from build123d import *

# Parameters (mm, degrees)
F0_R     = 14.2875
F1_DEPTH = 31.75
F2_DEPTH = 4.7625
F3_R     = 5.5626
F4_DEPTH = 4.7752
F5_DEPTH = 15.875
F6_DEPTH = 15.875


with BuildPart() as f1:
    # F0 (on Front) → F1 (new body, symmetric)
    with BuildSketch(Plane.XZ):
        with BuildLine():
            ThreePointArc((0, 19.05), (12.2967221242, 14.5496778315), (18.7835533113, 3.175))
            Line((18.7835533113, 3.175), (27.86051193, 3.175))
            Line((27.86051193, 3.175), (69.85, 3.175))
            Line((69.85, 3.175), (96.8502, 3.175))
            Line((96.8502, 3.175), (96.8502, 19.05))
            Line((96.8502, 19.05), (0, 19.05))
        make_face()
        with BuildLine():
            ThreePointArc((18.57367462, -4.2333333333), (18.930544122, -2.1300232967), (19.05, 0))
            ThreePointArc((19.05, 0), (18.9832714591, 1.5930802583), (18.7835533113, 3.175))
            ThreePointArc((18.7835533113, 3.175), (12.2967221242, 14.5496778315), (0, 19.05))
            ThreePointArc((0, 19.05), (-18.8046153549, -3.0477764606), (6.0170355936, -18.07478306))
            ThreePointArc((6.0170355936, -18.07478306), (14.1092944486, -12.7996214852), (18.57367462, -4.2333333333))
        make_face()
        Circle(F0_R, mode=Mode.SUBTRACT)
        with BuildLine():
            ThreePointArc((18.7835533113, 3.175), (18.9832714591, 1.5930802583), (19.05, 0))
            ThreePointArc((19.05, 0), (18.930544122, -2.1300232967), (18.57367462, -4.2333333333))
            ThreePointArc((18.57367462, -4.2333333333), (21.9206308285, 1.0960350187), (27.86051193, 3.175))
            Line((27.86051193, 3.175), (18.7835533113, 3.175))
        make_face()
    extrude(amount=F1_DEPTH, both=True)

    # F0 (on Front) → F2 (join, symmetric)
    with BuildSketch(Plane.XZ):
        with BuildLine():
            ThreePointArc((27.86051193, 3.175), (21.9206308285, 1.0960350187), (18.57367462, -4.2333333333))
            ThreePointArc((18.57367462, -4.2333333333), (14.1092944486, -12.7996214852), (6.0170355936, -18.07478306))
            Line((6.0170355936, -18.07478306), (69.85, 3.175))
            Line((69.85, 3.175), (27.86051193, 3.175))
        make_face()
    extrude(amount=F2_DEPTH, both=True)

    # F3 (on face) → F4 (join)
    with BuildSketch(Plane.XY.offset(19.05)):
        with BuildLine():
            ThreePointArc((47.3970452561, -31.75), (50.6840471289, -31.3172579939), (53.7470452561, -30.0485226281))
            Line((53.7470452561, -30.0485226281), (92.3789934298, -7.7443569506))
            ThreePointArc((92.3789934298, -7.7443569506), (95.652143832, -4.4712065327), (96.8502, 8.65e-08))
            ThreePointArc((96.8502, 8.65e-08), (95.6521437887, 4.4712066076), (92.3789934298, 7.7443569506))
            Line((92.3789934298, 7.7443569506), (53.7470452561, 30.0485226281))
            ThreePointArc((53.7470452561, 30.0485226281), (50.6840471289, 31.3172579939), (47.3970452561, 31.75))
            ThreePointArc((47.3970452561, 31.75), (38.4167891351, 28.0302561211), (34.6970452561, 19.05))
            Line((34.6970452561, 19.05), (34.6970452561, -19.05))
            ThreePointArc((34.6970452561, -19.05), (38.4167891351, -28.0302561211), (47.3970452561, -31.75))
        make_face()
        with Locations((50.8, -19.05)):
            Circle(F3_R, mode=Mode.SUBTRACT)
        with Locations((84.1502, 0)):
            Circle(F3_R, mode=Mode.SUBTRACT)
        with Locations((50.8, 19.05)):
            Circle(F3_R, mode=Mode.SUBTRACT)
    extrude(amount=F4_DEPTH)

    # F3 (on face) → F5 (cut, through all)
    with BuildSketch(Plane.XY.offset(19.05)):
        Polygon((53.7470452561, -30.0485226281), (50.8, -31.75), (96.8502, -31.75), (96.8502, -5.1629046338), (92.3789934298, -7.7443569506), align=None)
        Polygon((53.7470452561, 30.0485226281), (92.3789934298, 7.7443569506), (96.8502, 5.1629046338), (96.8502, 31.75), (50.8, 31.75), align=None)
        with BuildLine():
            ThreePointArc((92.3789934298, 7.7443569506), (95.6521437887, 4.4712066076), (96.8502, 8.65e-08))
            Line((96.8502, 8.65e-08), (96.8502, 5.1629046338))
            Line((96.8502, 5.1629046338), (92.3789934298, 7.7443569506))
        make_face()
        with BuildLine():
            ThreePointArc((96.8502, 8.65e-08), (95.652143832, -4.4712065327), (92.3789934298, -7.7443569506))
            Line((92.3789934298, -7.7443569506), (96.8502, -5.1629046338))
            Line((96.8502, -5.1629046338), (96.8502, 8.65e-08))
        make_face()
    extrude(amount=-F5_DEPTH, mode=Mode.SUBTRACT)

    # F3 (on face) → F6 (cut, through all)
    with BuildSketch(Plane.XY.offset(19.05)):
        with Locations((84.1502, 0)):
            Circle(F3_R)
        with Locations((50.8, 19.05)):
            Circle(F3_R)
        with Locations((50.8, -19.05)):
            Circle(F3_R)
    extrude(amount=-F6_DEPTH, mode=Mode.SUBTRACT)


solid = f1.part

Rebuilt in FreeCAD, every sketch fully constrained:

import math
import FreeCAD as App
import Part
import Sketcher

V = App.Vector
Q = App.Units.Quantity

doc = App.newDocument("Part")
body = doc.addObject("PartDesign::Body", "Body")

# Sketch on XZ plane
sketch1 = body.newObject("Sketcher::SketchObject", "Sketch")
sketch1.AttachmentSupport = (doc.getObject("XZ_Plane"), [""])
sketch1.MapMode = "FlatFace"
sketch1.addGeometry([
    Part.LineSegment(V(28, 3, 0), V(97, 3, 0)),  # 0
    Part.LineSegment(V(97, 3, 0), V(97, 19, 0)),  # 1
    Part.LineSegment(V(97, 19, 0), V(0, 19, 0)),  # 2
    Part.ArcOfCircle(Part.Circle(V(0, 0, 0), V(0, 0, 1), 19), math.radians(90), math.radians(288)),  # 3
    Part.ArcOfCircle(Part.Circle(V(0, 0, 0), V(0, 0, 1), 19), math.radians(-72), math.radians(-13)),  # 4
    Part.ArcOfCircle(Part.Circle(V(28, -6, 0), V(0, 0, 1), 10), math.radians(90), math.radians(167)),  # 5
    Part.Circle(V(0, 0, 0), V(0, 0, 1), 14),  # 6
], False)
sketch1.addConstraint([
    Sketcher.Constraint("Coincident", 0, 2, 1, 1),
    Sketcher.Constraint("Coincident", 1, 2, 2, 1),
    Sketcher.Constraint("Tangent", 2, 2, 3, 1),
    Sketcher.Constraint("Tangent", 3, 2, 4, 1),
    Sketcher.Constraint("Tangent", 4, 2, 5, 2),
    Sketcher.Constraint("Tangent", 5, 1, 0, 1),
    Sketcher.Constraint("Horizontal", 0),
    Sketcher.Constraint("Vertical", 1),
    Sketcher.Constraint("Horizontal", 2),
    Sketcher.Constraint("Coincident", 3, 3, -1, 1),
    Sketcher.Constraint("Coincident", 6, 3, -1, 1),
    Sketcher.Constraint("Equal", 3, 4),
    Sketcher.Constraint("Radius", 3, Q("0.75 in")),
    Sketcher.Constraint("Diameter", 6, Q("1.125 in")),
    Sketcher.Constraint("Radius", 5, Q("0.375 in")),
    Sketcher.Constraint("DistanceY", 5, 3, 1, 2, Q("1 in")),
    Sketcher.Constraint("DistanceX", 2, 2, 2, 1, Q("3.813 in")),
    Sketcher.Constraint("DistanceX", 3, 2, 4, 2, Q("12.556639 mm")),
])
pad1 = body.newObject("PartDesign::Pad", "Pad")
pad1.Profile = sketch1
pad1.Length = Q("2.5 in")
pad1.Midplane = True

# Sketch on XZ plane
sketch2 = body.newObject("Sketcher::SketchObject", "Sketch001")
sketch2.AttachmentSupport = (doc.getObject("XZ_Plane"), [""])
sketch2.MapMode = "FlatFace"
sketch2.addGeometry([
    Part.ArcOfCircle(Part.Circle(V(28, -6, 0), V(0, 0, 1), 10), math.radians(90), math.radians(167)),
    Part.ArcOfCircle(Part.Circle(V(0, 0, 0), V(0, 0, 1), 19), math.radians(-72), math.radians(-13)),
    Part.LineSegment(V(6, -18, 0), V(70, 3, 0)),
    Part.LineSegment(V(70, 3, 0), V(28, 3, 0)),
], False)
sketch2.addConstraint([
    Sketcher.Constraint("Tangent", 0, 2, 1, 2),
    Sketcher.Constraint("Tangent", 1, 1, 2, 1),
    Sketcher.Constraint("Coincident", 2, 2, 3, 1),
    Sketcher.Constraint("Tangent", 3, 2, 0, 1),
    Sketcher.Constraint("Horizontal", 3),
    Sketcher.Constraint("Coincident", 1, 3, -1, 1),
    Sketcher.Constraint("Radius", 1, Q("0.75 in")),
    Sketcher.Constraint("Radius", 0, Q("0.375 in")),
    Sketcher.Constraint("DistanceY", 0, 3, -1, 1, Q("0.25 in")),
    Sketcher.Constraint("DistanceX", -1, 1, 2, 2, Q("2.75 in")),
])
pad2 = body.newObject("PartDesign::Pad", "Pad001")
pad2.Profile = sketch2
pad2.Length = Q("0.375 in")
pad2.Midplane = True

# Sketch on XY plane
sketch3 = body.newObject("Sketcher::SketchObject", "Sketch002")
sketch3.AttachmentSupport = (doc.getObject("XY_Plane"), [""])
sketch3.MapMode = "FlatFace"
sketch3.AttachmentOffset = App.Placement(V(0, 0, 0.75 * 25.4), App.Rotation())
sketch3.addGeometry([
    Part.ArcOfCircle(Part.Circle(V(47, -19, 0), V(0, 0, 1), 13), math.radians(-90), math.radians(-60)),  # 0
    Part.LineSegment(V(54, -30, 0), V(92, -8, 0)),  # 1
    Part.ArcOfCircle(Part.Circle(V(88, 0, 0), V(0, 0, 1), 9), math.radians(-60), math.radians(0)),  # 2
    Part.ArcOfCircle(Part.Circle(V(88, 0, 0), V(0, 0, 1), 9), math.radians(0), math.radians(60)),  # 3
    Part.LineSegment(V(92, 8, 0), V(54, 30, 0)),  # 4
    Part.ArcOfCircle(Part.Circle(V(47, 19, 0), V(0, 0, 1), 13), math.radians(60), math.radians(90)),  # 5
    Part.ArcOfCircle(Part.Circle(V(47, 19, 0), V(0, 0, 1), 13), math.radians(90), math.radians(180)),  # 6
    Part.LineSegment(V(35, 19, 0), V(35, -19, 0)),  # 7
    Part.ArcOfCircle(Part.Circle(V(47, -19, 0), V(0, 0, 1), 13), math.radians(180), math.radians(270)),  # 8
    Part.Circle(V(51, -19, 0), V(0, 0, 1), 6),  # 9
    Part.Circle(V(51, 19, 0), V(0, 0, 1), 6),  # 10
    Part.Circle(V(84, 0, 0), V(0, 0, 1), 6),  # 11
], False)
sketch3.addConstraint([
    Sketcher.Constraint("Tangent", 0, 2, 1, 1),
    Sketcher.Constraint("Tangent", 1, 2, 2, 1),
    Sketcher.Constraint("Tangent", 2, 2, 3, 1),
    Sketcher.Constraint("Tangent", 3, 2, 4, 1),
    Sketcher.Constraint("Tangent", 4, 2, 5, 1),
    Sketcher.Constraint("Tangent", 5, 2, 6, 1),
    Sketcher.Constraint("Tangent", 6, 2, 7, 1),
    Sketcher.Constraint("Tangent", 7, 2, 8, 1),
    Sketcher.Constraint("Tangent", 8, 2, 0, 1),
    Sketcher.Constraint("Vertical", 7),
    Sketcher.Constraint("Equal", 2, 3),
    Sketcher.Constraint("Equal", 0, 5),
    Sketcher.Constraint("Equal", 5, 6),
    Sketcher.Constraint("Equal", 6, 8),
    Sketcher.Constraint("Equal", 9, 10),
    Sketcher.Constraint("Equal", 10, 11),
    Sketcher.Constraint("Symmetric", 9, 3, 10, 3, -1),
    Sketcher.Constraint("Symmetric", 1, 2, 3, 2, -1),
    Sketcher.Constraint("PointOnObject", 11, 3, -1),
    Sketcher.Constraint("PointOnObject", 2, 2, -1),
    Sketcher.Constraint("Horizontal", 8, 3, 9, 3),
    Sketcher.Constraint("Vertical", 8, 3, 5, 2),
    Sketcher.Constraint("Vertical", 5, 2, 8, 2),
    Sketcher.Constraint("Radius", 0, Q("0.5 in")),
    Sketcher.Constraint("Diameter", 9, Q("0.438 in")),
    Sketcher.Constraint("DistanceY", 7, 2, 7, 1, Q("1.5 in")),
    Sketcher.Constraint("DistanceX", -1, 1, 9, 3, Q("2 in")),
    Sketcher.Constraint("Angle", 1, Q("30 deg")),
    Sketcher.Constraint("DistanceX", 11, 3, 2, 2, Q("0.5 in")),
    Sketcher.Constraint("DistanceX", -1, 1, 11, 3, Q("3.313 in")),
    Sketcher.Constraint("Radius", 2, Q("8.942413 mm")),
])
pad3 = body.newObject("PartDesign::Pad", "Pad002")
pad3.Profile = sketch3
pad3.Length = Q("0.188 in")

# Sketch on XY plane
sketch4 = body.newObject("Sketcher::SketchObject", "Sketch003")
sketch4.AttachmentSupport = (doc.getObject("XY_Plane"), [""])
sketch4.MapMode = "FlatFace"
sketch4.AttachmentOffset = App.Placement(V(0, 0, 0.75 * 25.4), App.Rotation())
sketch4.addGeometry([
    Part.LineSegment(V(53.7, -30, 0), V(50.8, -31.8, 0)),  # 0
    Part.LineSegment(V(50.8, -31.8, 0), V(96.9, -31.8, 0)),  # 1
    Part.LineSegment(V(96.9, -31.8, 0), V(96.9, 0, 0)),  # 2
    Part.ArcOfCircle(Part.Circle(V(87.9, 0, 0), V(0, 0, 1), 8.9), math.radians(-60), math.radians(0)),  # 3
    Part.LineSegment(V(92.4, -7.7, 0), V(53.7, -30, 0)),  # 4
    Part.LineSegment(V(53.7, 30, 0), V(92.4, 7.7, 0)),  # 5
    Part.ArcOfCircle(Part.Circle(V(87.9, 0, 0), V(0, 0, 1), 8.9), math.radians(0), math.radians(60)),  # 6
    Part.LineSegment(V(96.9, 0, 0), V(96.9, 31.8, 0)),  # 7
    Part.LineSegment(V(96.9, 31.8, 0), V(50.8, 31.8, 0)),  # 8
    Part.LineSegment(V(50.8, 31.8, 0), V(53.7, 30, 0)),  # 9
], False)
sketch4.addConstraint([
    Sketcher.Constraint("Coincident", 0, 2, 1, 1),
    Sketcher.Constraint("Coincident", 1, 2, 2, 1),
    Sketcher.Constraint("Tangent", 2, 2, 3, 2),
    Sketcher.Constraint("Tangent", 3, 1, 4, 1),
    Sketcher.Constraint("Coincident", 4, 2, 0, 1),
    Sketcher.Constraint("Tangent", 5, 2, 6, 2),
    Sketcher.Constraint("Tangent", 6, 1, 7, 1),
    Sketcher.Constraint("Coincident", 7, 2, 8, 1),
    Sketcher.Constraint("Coincident", 8, 2, 9, 1),
    Sketcher.Constraint("Coincident", 9, 2, 5, 1),
    Sketcher.Constraint("Horizontal", 1),
    Sketcher.Constraint("Vertical", 2),
    Sketcher.Constraint("Vertical", 7),
    Sketcher.Constraint("Horizontal", 8),
    Sketcher.Constraint("Coincident", 6, 3, 3, 3),
    Sketcher.Constraint("Equal", 3, 6),
    Sketcher.Constraint("Symmetric", 3, 1, 5, 2, -1),
    Sketcher.Constraint("Symmetric", 0, 2, 8, 2, -1),
    Sketcher.Constraint("Parallel", 0, 4),
    Sketcher.Constraint("Vertical", 4, 2, 9, 2),
    Sketcher.Constraint("DistanceX", -1, 1, 0, 2, Q("2 in")),
    Sketcher.Constraint("Angle", 0, Q("-150 deg")),
    Sketcher.Constraint("DistanceY", 2, 1, 2, 2, Q("1.25 in")),
    Sketcher.Constraint("DistanceX", 1, 1, 1, 2, Q("1.813 in")),
    Sketcher.Constraint("Distance", 4, Q("44.608331 mm")),
])
pocket1 = body.newObject("PartDesign::Pocket", "Pocket")
pocket1.Profile = sketch4
pocket1.Type = "ThroughAll"

# Sketch on XY plane
sketch5 = body.newObject("Sketcher::SketchObject", "Sketch004")
sketch5.AttachmentSupport = (doc.getObject("XY_Plane"), [""])
sketch5.MapMode = "FlatFace"
sketch5.AttachmentOffset = App.Placement(V(0, 0, 0.75 * 25.4), App.Rotation())
sketch5.addGeometry([
    Part.Circle(V(84, 0, 0), V(0, 0, 1), 6),
    Part.Circle(V(51, 19, 0), V(0, 0, 1), 6),
    Part.Circle(V(51, -19, 0), V(0, 0, 1), 6),
], False)
sketch5.addConstraint([
    Sketcher.Constraint("Equal", 0, 1),
    Sketcher.Constraint("Equal", 1, 2),
    Sketcher.Constraint("Symmetric", 1, 3, 2, 3, -1),
    Sketcher.Constraint("PointOnObject", 0, 3, -1),
    Sketcher.Constraint("Diameter", 0, Q("0.438 in")),
    Sketcher.Constraint("DistanceX", -1, 1, 1, 3, Q("2 in")),
    Sketcher.Constraint("DistanceY", 2, 3, 1, 3, Q("1.5 in")),
    Sketcher.Constraint("DistanceX", -1, 1, 0, 3, Q("3.313 in")),
])
pocket2 = body.newObject("PartDesign::Pocket", "Pocket001")
pocket2.Profile = sketch5
pocket2.Type = "ThroughAll"

doc.recompute()
